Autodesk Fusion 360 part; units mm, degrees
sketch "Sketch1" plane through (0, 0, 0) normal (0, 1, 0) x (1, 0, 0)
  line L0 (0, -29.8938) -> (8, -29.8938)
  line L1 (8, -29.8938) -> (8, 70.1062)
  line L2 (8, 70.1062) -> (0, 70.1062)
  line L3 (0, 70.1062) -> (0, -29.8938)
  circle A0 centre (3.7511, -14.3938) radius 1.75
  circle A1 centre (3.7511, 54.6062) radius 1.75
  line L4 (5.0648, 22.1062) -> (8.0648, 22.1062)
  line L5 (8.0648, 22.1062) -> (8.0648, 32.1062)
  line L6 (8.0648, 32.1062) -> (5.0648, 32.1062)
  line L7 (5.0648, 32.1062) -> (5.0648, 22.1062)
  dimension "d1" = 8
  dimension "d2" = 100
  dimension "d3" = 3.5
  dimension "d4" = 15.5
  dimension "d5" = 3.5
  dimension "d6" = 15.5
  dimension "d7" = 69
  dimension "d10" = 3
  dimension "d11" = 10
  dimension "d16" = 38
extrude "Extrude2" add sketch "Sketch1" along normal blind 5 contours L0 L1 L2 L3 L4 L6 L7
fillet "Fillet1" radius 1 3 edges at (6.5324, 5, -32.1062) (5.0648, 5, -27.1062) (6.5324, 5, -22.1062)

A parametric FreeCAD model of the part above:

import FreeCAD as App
import Part
import Sketcher
from FreeCAD import Vector


def edges_at(feature, points):
    """Names of the edges that pass closest to the given points."""
    edges = feature.Shape.Edges
    near = lambda p: min(range(len(edges)), key=lambda i: edges[i].distToShape(Part.Vertex(*p))[0])
    return sorted({f"Edge{near(p) + 1}" for p in points})

doc = App.newDocument("Part")
body = doc.addObject("PartDesign::Body", "Body")

# Sketch on XZ plane
sketch1 = body.newObject("Sketcher::SketchObject", "Sketch")
sketch1.AttachmentSupport = (doc.getObject("XZ_Plane"), [""])
sketch1.MapMode = "FlatFace"
sketch1.addGeometry([
    Part.LineSegment(Vector(0, -70.1062, 0), Vector(0, 29.8938, 0)),  # 0
    Part.LineSegment(Vector(0, 29.8938, 0), Vector(8, 29.8938, 0)),  # 1
    Part.LineSegment(Vector(8, 29.8938, 0), Vector(8, -22.1062, 0)),  # 2
    Part.LineSegment(Vector(8, -22.1062, 0), Vector(5.0648, -22.1062, 0)),  # 3
    Part.LineSegment(Vector(5.0648, -22.1062, 0), Vector(5.0648, -32.1062, 0)),  # 4
    Part.LineSegment(Vector(5.0648, -32.1062, 0), Vector(8, -32.1062, 0)),  # 5
    Part.LineSegment(Vector(8, -32.1062, 0), Vector(8, -70.1062, 0)),  # 6
    Part.LineSegment(Vector(8, -70.1062, 0), Vector(0, -70.1062, 0)),  # 7
    Part.Circle(Vector(3.7511, 14.3938, 0), Vector(0, 0, 1), 1.75),  # 8
    Part.Circle(Vector(3.7511, -54.6062, 0), Vector(0, 0, 1), 1.75),  # 9
], False)
sketch1.addConstraint([
    Sketcher.Constraint("Coincident", 0, 2, 1, 1),
    Sketcher.Constraint("Coincident", 1, 2, 2, 1),
    Sketcher.Constraint("Coincident", 2, 2, 3, 1),
    Sketcher.Constraint("Coincident", 3, 2, 4, 1),
    Sketcher.Constraint("Coincident", 4, 2, 5, 1),
    Sketcher.Constraint("Coincident", 5, 2, 6, 1),
    Sketcher.Constraint("Coincident", 6, 2, 7, 1),
    Sketcher.Constraint("Coincident", 7, 2, 0, 1),
    Sketcher.Constraint("Vertical", 0),
    Sketcher.Constraint("Horizontal", 1),
    Sketcher.Constraint("Vertical", 2),
    Sketcher.Constraint("Horizontal", 3),
    Sketcher.Constraint("Vertical", 4),
    Sketcher.Constraint("Horizontal", 5),
    Sketcher.Constraint("Vertical", 6),
    Sketcher.Constraint("Horizontal", 7),
    Sketcher.Constraint("Equal", 8, 9),
    Sketcher.Constraint("PointOnObject", 0, 2, -2),
    Sketcher.Constraint("Vertical", 8, 3, 9, 3),
    Sketcher.Constraint("Vertical", 2, 2, 5, 2),
    Sketcher.Constraint("Diameter", 8, 3.5),
    Sketcher.Constraint("DistanceX", 1, 1, 1, 2, 8.0),
    Sketcher.Constraint("DistanceY", 0, 1, 0, 2, 100.0),
    Sketcher.Constraint("DistanceY", 4, 2, 4, 1, 10.0),
    Sketcher.Constraint("DistanceY", 6, 2, 6, 1, 38.0),
    Sketcher.Constraint("DistanceY", 9, 3, 8, 3, 69.0),
    Sketcher.Constraint("DistanceY", 8, 3, 0, 2, 15.5),
    Sketcher.Constraint("DistanceX", 3, 2, 3, 1, 2.9352),
    Sketcher.Constraint("DistanceX", -1, 1, 8, 3, 3.751),
    Sketcher.Constraint("DistanceY", -1, 1, 8, 3, 14.3938),
])
pad1 = body.newObject("PartDesign::Pad", "Pad")
pad1.Profile = sketch1
pad1.Length = 5
pad1.Reversed = True
doc.recompute()

fillet = body.newObject("PartDesign::Fillet", "Fillet")
fillet.Base = (pad1, edges_at(pad1, [(6.532, 5, -32.106), (5.065, 5, -27.106), (6.532, 5, -22.106)]))
fillet.Radius = 1

doc.recompute()
